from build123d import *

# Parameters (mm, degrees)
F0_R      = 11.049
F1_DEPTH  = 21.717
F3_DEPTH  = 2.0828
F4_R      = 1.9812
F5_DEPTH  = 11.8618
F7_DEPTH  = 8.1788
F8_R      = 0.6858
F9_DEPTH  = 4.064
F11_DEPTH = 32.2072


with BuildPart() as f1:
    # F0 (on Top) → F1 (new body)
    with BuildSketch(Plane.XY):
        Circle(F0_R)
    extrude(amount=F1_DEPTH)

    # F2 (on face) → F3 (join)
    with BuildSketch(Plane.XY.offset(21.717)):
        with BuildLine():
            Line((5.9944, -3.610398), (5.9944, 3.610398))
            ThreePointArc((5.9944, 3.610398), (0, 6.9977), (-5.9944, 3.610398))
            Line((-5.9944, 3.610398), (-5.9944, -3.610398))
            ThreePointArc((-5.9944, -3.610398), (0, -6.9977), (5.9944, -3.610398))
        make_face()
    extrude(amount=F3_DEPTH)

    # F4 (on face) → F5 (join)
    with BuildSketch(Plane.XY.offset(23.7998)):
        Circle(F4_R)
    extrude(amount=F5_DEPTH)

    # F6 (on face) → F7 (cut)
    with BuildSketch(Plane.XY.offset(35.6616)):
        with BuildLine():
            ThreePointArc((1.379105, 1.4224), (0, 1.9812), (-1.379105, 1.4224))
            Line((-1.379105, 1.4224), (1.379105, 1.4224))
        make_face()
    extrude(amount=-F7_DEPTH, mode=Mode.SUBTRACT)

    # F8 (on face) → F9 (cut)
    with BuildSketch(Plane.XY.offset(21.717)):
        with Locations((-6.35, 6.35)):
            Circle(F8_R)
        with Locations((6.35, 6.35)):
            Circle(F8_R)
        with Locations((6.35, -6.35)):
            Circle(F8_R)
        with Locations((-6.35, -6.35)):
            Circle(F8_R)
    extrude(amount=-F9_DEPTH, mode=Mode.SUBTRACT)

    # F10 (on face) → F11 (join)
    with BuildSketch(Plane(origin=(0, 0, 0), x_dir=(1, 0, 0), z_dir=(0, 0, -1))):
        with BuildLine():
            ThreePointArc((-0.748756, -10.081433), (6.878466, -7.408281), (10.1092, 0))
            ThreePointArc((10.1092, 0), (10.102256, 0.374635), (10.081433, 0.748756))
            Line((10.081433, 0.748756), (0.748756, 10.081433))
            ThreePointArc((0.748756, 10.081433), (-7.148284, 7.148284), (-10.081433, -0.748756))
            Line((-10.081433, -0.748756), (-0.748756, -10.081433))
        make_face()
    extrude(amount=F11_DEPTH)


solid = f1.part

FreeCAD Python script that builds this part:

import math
import FreeCAD as App
import Part
import Sketcher

V = App.Vector
Q = App.Units.Quantity

doc = App.newDocument("Part")
body = doc.addObject("PartDesign::Body", "Body")

# Sketch on XY plane
sketch1 = body.newObject("Sketcher::SketchObject", "Sketch")
sketch1.AttachmentSupport = (doc.getObject("XY_Plane"), [""])
sketch1.MapMode = "FlatFace"
sketch1.addGeometry(Part.Circle(V(0, 0, 0), V(0, 0, 1), 11), False)
sketch1.addConstraint([
    Sketcher.Constraint("Coincident", 0, 3, -1, 1),
    Sketcher.Constraint("Diameter", 0, Q("0.87 in")),
])
pad1 = body.newObject("PartDesign::Pad", "Pad")
pad1.Profile = sketch1
pad1.Length = Q("0.855 in")

# Sketch on XY plane
sketch2 = body.newObject("Sketcher::SketchObject", "Sketch001")
sketch2.AttachmentSupport = (doc.getObject("XY_Plane"), [""])
sketch2.MapMode = "FlatFace"
sketch2.AttachmentOffset = App.Placement(V(0, 0, 0.855 * 25.4), App.Rotation())
sketch2.addGeometry([
    Part.LineSegment(V(6, -4, 0), V(6, 4, 0)),
    Part.ArcOfCircle(Part.Circle(V(0, 0, 0), V(0, 0, 1), 7), math.radians(31), math.radians(149)),
    Part.LineSegment(V(-6, 4, 0), V(-6, -4, 0)),
    Part.ArcOfCircle(Part.Circle(V(0, 0, 0), V(0, 0, 1), 7), math.radians(-149), math.radians(-31)),
], False)
sketch2.addConstraint([
    Sketcher.Constraint("Coincident", 0, 2, 1, 1),
    Sketcher.Constraint("Coincident", 1, 2, 2, 1),
    Sketcher.Constraint("Coincident", 2, 2, 3, 1),
    Sketcher.Constraint("Coincident", 3, 2, 0, 1),
    Sketcher.Constraint("Vertical", 0),
    Sketcher.Constraint("Vertical", 2),
    Sketcher.Constraint("Coincident", 1, 3, -1, 1),
    Sketcher.Constraint("Coincident", 3, 3, -1, 1),
    Sketcher.Constraint("Equal", 1, 3),
    Sketcher.Constraint("Horizontal", 0, 2, 1, 2),
    Sketcher.Constraint("Radius", 1, Q("0.2755 in")),
    Sketcher.Constraint("DistanceX", -1, 1, 0, 2, Q("0.236 in")),
])
pad2 = body.newObject("PartDesign::Pad", "Pad001")
pad2.Profile = sketch2
pad2.Length = Q("0.082 in")

# Sketch on XY plane
sketch3 = body.newObject("Sketcher::SketchObject", "Sketch002")
sketch3.AttachmentSupport = (doc.getObject("XY_Plane"), [""])
sketch3.MapMode = "FlatFace"
sketch3.AttachmentOffset = App.Placement(V(0, 0, 0.937 * 25.4), App.Rotation())
sketch3.addGeometry(Part.Circle(V(0, 0, 0), V(0, 0, 1), 2), False)
sketch3.addConstraint([
    Sketcher.Constraint("Coincident", 0, 3, -1, 1),
    Sketcher.Constraint("Diameter", 0, Q("0.156 in")),
])
pad3 = body.newObject("PartDesign::Pad", "Pad002")
pad3.Profile = sketch3
pad3.Length = Q("0.467 in")

# Sketch on XY plane
sketch4 = body.newObject("Sketcher::SketchObject", "Sketch003")
sketch4.AttachmentSupport = (doc.getObject("XY_Plane"), [""])
sketch4.MapMode = "FlatFace"
sketch4.AttachmentOffset = App.Placement(V(0, 0, 1.404 * 25.4), App.Rotation())
sketch4.addGeometry([
    Part.ArcOfCircle(Part.Circle(V(0, 0, 0), V(0, 0, 1), 2), math.radians(46), math.radians(134)),
    Part.LineSegment(V(-1.4, 1.4, 0), V(1.4, 1.4, 0)),
], False)
sketch4.addConstraint([
    Sketcher.Constraint("Coincident", 0, 1, 1, 2),
    Sketcher.Constraint("Coincident", 1, 1, 0, 2),
    Sketcher.Constraint("Horizontal", 1),
    Sketcher.Constraint("Coincident", 0, 3, -1, 1),
    Sketcher.Constraint("Radius", 0, Q("0.078 in")),
    Sketcher.Constraint("DistanceY", -1, 1, 0, 1, Q("0.056 in")),
])
pocket1 = body.newObject("PartDesign::Pocket", "Pocket")
pocket1.Profile = sketch4
pocket1.Length = Q("0.322 in")

# Sketch on XY plane
sketch5 = body.newObject("Sketcher::SketchObject", "Sketch004")
sketch5.AttachmentSupport = (doc.getObject("XY_Plane"), [""])
sketch5.MapMode = "FlatFace"
sketch5.AttachmentOffset = App.Placement(V(0, 0, 0.855 * 25.4), App.Rotation())
sketch5.addGeometry([
    Part.Circle(V(-6.3, 6.3, 0), V(0, 0, 1), 0.7),
    Part.Circle(V(6.3, 6.3, 0), V(0, 0, 1), 0.7),
    Part.Circle(V(6.3, -6.3, 0), V(0, 0, 1), 0.7),
    Part.Circle(V(-6.3, -6.3, 0), V(0, 0, 1), 0.7),
], False)
sketch5.addConstraint([
    Sketcher.Constraint("Equal", 0, 1),
    Sketcher.Constraint("Equal", 1, 2),
    Sketcher.Constraint("Equal", 2, 3),
    Sketcher.Constraint("Symmetric", 0, 3, 2, 3, -1, 1),
    Sketcher.Constraint("Symmetric", 1, 3, 3, 3, -1, 1),
    Sketcher.Constraint("Symmetric", 0, 3, 1, 3, -2),
    Sketcher.Constraint("Diameter", 0, Q("0.054 in")),
    Sketcher.Constraint("DistanceX", 0, 3, 1, 3, Q("0.5 in")),
    Sketcher.Constraint("DistanceY", 2, 3, 1, 3, Q("0.5 in")),
])
pocket2 = body.newObject("PartDesign::Pocket", "Pocket001")
pocket2.Profile = sketch5
pocket2.Length = Q("0.16 in")

# Sketch on XY plane
sketch6 = body.newObject("Sketcher::SketchObject", "Sketch005")
sketch6.AttachmentSupport = (doc.getObject("XY_Plane"), [""])
sketch6.MapMode = "FlatFace"
sketch6.addGeometry([
    Part.ArcOfCircle(Part.Circle(V(0, 0, 0), V(0, 0, 1), 10.1), math.radians(0), math.radians(94)),  # 0
    Part.ArcOfCircle(Part.Circle(V(0, 0, 0), V(0, 0, 1), 10.1), math.radians(-4.25), math.radians(0)),  # 1
    Part.LineSegment(V(10.1, -0.7, 0), V(0.7, -10.1, 0)),  # 2
    Part.ArcOfCircle(Part.Circle(V(0, 0, 0), V(0, 0, 1), 10.1), math.radians(176), math.radians(274)),  # 3
    Part.LineSegment(V(-10.1, 0.7, 0), V(-0.7, 10.1, 0)),  # 4
], False)
sketch6.addConstraint([
    Sketcher.Constraint("Tangent", 0, 1, 1, 2),
    Sketcher.Constraint("Coincident", 1, 1, 2, 1),
    Sketcher.Constraint("Coincident", 2, 2, 3, 2),
    Sketcher.Constraint("Coincident", 3, 1, 4, 1),
    Sketcher.Constraint("Coincident", 4, 2, 0, 2),
    Sketcher.Constraint("Coincident", 0, 3, -1, 1),
    Sketcher.Constraint("Coincident", 3, 3, -1, 1),
    Sketcher.Constraint("Equal", 0, 3),
    Sketcher.Constraint("PointOnObject", 0, 1, -1),
    Sketcher.Constraint("Parallel", 2, 4),
    Sketcher.Constraint("Equal", 2, 4),
    Sketcher.Constraint("Angle", 2, Q("-135 deg")),
    Sketcher.Constraint("Radius", 0, Q("0.398 in")),
    Sketcher.Constraint("Radius", 1, 10.109062),
    Sketcher.Constraint("Distance", 2, 13.198398),
])
pad4 = body.newObject("PartDesign::Pad", "Pad003")
pad4.Profile = sketch6
pad4.Length = Q("1.268 in")
pad4.Reversed = True

doc.recompute()
